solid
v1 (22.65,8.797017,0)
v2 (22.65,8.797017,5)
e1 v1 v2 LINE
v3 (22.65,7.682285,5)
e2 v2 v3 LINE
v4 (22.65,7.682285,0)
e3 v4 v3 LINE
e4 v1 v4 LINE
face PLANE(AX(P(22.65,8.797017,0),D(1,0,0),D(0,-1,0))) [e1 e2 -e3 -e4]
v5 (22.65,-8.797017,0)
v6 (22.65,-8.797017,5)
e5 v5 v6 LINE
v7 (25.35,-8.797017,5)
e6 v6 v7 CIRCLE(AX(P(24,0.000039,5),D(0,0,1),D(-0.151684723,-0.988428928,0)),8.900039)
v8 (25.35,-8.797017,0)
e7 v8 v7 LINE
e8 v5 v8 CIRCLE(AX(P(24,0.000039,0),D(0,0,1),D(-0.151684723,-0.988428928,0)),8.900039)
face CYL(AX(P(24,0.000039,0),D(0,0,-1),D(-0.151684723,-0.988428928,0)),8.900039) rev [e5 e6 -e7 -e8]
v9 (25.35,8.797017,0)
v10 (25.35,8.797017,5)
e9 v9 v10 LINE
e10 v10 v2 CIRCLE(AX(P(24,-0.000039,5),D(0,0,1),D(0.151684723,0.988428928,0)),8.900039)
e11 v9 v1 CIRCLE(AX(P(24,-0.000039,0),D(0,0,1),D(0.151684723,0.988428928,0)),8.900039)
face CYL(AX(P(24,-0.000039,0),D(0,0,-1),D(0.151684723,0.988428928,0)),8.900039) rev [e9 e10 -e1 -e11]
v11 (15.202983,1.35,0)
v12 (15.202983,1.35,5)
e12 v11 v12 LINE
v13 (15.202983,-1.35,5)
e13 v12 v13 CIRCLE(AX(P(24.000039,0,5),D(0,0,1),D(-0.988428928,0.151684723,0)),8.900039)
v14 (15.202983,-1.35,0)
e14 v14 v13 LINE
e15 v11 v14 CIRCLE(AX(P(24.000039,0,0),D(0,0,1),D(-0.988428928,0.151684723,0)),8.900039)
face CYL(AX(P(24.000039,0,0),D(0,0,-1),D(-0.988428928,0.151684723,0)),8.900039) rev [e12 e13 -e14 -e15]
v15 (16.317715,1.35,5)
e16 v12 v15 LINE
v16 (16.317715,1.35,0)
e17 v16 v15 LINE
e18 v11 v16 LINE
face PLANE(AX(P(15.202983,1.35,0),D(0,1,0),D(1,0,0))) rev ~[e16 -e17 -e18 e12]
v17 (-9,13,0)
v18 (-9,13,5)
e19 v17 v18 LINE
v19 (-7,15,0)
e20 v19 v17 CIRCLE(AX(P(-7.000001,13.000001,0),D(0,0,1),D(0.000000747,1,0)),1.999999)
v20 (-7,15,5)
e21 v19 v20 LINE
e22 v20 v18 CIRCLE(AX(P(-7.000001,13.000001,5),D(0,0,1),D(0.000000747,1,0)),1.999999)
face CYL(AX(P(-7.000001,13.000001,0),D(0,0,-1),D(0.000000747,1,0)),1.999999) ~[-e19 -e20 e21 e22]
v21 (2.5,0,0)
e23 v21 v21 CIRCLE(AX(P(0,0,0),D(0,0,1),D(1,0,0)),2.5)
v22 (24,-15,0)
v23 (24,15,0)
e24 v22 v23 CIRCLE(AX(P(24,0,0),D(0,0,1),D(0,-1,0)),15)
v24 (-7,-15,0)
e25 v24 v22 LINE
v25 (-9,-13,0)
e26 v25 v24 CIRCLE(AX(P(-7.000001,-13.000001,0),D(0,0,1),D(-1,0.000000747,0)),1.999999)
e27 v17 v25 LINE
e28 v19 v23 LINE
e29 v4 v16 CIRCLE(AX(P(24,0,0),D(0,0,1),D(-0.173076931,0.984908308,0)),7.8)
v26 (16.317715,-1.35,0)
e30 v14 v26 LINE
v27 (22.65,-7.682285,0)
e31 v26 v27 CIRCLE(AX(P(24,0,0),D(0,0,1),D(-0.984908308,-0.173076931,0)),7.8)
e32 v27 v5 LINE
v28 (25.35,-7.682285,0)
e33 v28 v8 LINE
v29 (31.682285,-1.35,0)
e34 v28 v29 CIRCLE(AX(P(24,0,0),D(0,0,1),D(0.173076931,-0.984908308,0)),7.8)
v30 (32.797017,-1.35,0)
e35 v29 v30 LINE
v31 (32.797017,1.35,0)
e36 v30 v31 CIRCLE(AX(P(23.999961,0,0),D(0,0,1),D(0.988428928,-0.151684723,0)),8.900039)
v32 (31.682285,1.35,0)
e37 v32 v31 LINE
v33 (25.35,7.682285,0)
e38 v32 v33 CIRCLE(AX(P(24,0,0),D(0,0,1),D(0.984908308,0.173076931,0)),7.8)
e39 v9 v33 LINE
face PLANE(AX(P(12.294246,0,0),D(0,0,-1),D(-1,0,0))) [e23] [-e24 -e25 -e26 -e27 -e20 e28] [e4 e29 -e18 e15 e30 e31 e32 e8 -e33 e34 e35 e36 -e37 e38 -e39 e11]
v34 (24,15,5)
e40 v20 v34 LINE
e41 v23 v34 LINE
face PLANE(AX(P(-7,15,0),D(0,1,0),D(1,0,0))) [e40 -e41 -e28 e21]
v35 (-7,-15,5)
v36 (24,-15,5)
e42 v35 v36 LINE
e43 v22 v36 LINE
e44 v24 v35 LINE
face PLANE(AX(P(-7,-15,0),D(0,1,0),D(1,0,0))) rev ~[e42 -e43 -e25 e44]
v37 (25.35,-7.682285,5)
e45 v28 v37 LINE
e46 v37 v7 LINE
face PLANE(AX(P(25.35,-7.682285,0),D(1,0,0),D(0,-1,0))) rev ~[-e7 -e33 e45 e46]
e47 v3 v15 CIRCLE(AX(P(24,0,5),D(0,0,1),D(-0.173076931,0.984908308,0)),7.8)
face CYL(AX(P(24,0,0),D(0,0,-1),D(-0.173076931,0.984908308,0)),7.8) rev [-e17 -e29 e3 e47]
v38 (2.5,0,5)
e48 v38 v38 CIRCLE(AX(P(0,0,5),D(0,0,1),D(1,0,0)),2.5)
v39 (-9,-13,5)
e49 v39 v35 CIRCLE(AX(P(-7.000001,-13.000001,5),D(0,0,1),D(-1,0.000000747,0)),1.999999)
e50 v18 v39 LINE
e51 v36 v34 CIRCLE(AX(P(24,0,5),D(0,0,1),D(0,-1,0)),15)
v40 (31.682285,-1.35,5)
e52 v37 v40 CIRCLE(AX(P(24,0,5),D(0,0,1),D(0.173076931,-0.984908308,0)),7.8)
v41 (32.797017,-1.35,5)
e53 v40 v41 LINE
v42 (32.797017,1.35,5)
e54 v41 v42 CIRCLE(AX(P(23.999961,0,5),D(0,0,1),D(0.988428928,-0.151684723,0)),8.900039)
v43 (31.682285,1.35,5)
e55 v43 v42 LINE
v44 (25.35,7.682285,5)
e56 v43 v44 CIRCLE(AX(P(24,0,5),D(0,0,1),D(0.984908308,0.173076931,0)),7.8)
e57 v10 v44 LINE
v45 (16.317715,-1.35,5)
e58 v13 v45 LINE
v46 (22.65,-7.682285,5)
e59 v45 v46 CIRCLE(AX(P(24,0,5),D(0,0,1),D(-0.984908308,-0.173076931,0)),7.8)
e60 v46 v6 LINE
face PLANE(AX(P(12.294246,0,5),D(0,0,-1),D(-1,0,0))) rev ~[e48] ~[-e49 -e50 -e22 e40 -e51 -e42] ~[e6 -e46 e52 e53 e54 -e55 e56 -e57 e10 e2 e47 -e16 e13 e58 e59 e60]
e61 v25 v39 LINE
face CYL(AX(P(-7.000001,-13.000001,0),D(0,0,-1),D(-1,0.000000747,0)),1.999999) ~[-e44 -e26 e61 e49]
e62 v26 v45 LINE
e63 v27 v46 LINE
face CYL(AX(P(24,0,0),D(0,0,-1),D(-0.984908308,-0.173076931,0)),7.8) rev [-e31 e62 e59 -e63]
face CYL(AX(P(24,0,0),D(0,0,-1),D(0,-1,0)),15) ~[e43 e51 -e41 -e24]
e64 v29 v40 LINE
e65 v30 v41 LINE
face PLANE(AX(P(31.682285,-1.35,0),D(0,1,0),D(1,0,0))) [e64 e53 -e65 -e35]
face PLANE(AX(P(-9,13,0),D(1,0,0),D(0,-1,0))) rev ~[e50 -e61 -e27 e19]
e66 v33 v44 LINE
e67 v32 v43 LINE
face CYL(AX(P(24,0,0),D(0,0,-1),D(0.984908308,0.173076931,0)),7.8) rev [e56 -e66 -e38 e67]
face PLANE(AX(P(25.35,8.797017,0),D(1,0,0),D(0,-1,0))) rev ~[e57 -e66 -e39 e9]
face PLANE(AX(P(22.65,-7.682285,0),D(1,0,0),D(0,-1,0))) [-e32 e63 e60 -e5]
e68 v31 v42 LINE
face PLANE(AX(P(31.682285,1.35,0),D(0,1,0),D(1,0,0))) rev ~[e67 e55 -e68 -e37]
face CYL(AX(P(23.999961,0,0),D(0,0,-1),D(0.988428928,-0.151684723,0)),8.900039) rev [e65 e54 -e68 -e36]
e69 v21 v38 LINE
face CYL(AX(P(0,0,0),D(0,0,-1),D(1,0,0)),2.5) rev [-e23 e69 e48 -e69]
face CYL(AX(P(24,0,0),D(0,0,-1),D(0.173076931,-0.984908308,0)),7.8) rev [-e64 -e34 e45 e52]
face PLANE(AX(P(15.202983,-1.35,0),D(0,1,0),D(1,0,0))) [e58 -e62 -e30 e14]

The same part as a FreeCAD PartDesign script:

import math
import FreeCAD as App
import Part
import Sketcher

V = App.Vector
Q = App.Units.Quantity

doc = App.newDocument("Part")
params = doc.addObject("Spreadsheet::Sheet", "Params")
for row, (alias, value) in enumerate([
    ("sketch1_diameter", "5 mm"),
    ("sketch1_radius", "1.999999 mm"),
    ("sketch1_radius2", "15 mm"),
    ("sketch1_radius3", "7.8 mm"),
    ("sketch1_width", "31 mm"),
    ("pad1_length", "5 mm"),
], start=1):
    params.set(f"A{row}", alias)
    params.set(f"B{row}", "=" + value)
    params.setAlias(f"B{row}", alias)

body = doc.addObject("PartDesign::Body", "Body")

# Sketch on XY plane
sketch1 = body.newObject("Sketcher::SketchObject", "Sketch")
sketch1.AttachmentSupport = (doc.getObject("XY_Plane"), [""])
sketch1.MapMode = "FlatFace"
sketch1.addGeometry(Part.LineSegment(V(24, 15, 0), V(-7, 15, 0)), False)
sketch1.addGeometry(Part.ArcOfCircle(Part.Circle(V(-7.000001, 13.000001, 0), V(0, 0, 1), 1.999999), math.radians(89.999957), math.radians(180.000043)), False)
sketch1.addGeometry(Part.LineSegment(V(-9, 13, 0), V(-9, -13, 0)), False)
sketch1.addGeometry(Part.ArcOfCircle(Part.Circle(V(-7.000001, -13.000001, 0), V(0, 0, 1), 1.999999), math.radians(179.999957), math.radians(270.000043)), False)
sketch1.addGeometry(Part.LineSegment(V(-7, -15, 0), V(24, -15, 0)), False)
sketch1.addGeometry(Part.ArcOfCircle(Part.Circle(V(24, 0, 0), V(0, 0, 1), 15), math.radians(-90), math.radians(90)), False)
sketch1.addGeometry(Part.LineSegment(V(16.317715, -1.35, 0), V(15.202983, -1.35, 0)), False)
sketch1.addGeometry(Part.ArcOfCircle(Part.Circle(V(24.000039, 0, 0), V(0, 0, 1), 8.900039), math.radians(171.275429), math.radians(188.724571)), False)
sketch1.addGeometry(Part.LineSegment(V(15.202983, 1.35, 0), V(16.317715, 1.35, 0)), False)
sketch1.addGeometry(Part.ArcOfCircle(Part.Circle(V(24, 0, 0), V(0, 0, 1), 7.8), math.radians(99.966767), math.radians(170.033233)), False)
sketch1.addGeometry(Part.LineSegment(V(22.65, 7.682285, 0), V(22.65, 8.797017, 0)), False)
sketch1.addGeometry(Part.ArcOfCircle(Part.Circle(V(24, -0.000039, 0), V(0, 0, 1), 8.900039), math.radians(81.275429), math.radians(98.724571)), False)
sketch1.addGeometry(Part.LineSegment(V(25.35, 8.797017, 0), V(25.35, 7.682285, 0)), False)
sketch1.addGeometry(Part.ArcOfCircle(Part.Circle(V(24, 0, 0), V(0, 0, 1), 7.8), math.radians(9.966767), math.radians(80.033233)), False)
sketch1.addGeometry(Part.LineSegment(V(31.682285, 1.35, 0), V(32.797017, 1.35, 0)), False)
sketch1.addGeometry(Part.ArcOfCircle(Part.Circle(V(23.999961, 0, 0), V(0, 0, 1), 8.900039), math.radians(-8.724571), math.radians(8.724571)), False)
sketch1.addGeometry(Part.LineSegment(V(32.797017, -1.35, 0), V(31.682285, -1.35, 0)), False)
sketch1.addGeometry(Part.ArcOfCircle(Part.Circle(V(24, 0, 0), V(0, 0, 1), 7.8), math.radians(-80.033233), math.radians(-9.966767)), False)
sketch1.addGeometry(Part.LineSegment(V(25.35, -7.682285, 0), V(25.35, -8.797017, 0)), False)
sketch1.addGeometry(Part.ArcOfCircle(Part.Circle(V(24, 0.000039, 0), V(0, 0, 1), 8.900039), math.radians(-98.724571), math.radians(-81.275429)), False)
sketch1.addGeometry(Part.LineSegment(V(22.65, -8.797017, 0), V(22.65, -7.682285, 0)), False)
sketch1.addGeometry(Part.ArcOfCircle(Part.Circle(V(24, 0, 0), V(0, 0, 1), 7.8), math.radians(-170.033233), math.radians(-99.966767)), False)
sketch1.addGeometry(Part.Circle(V(0, 0, 0), V(0, 0, 1), 2.5), False)
sketch1.addConstraint(Sketcher.Constraint("Tangent", 0, 2, 1, 1))
sketch1.addConstraint(Sketcher.Constraint("Tangent", 1, 2, 2, 1))
sketch1.addConstraint(Sketcher.Constraint("Tangent", 2, 2, 3, 1))
sketch1.addConstraint(Sketcher.Constraint("Tangent", 3, 2, 4, 1))
sketch1.addConstraint(Sketcher.Constraint("Tangent", 4, 2, 5, 1))
sketch1.addConstraint(Sketcher.Constraint("Tangent", 5, 2, 0, 1))
sketch1.addConstraint(Sketcher.Constraint("Coincident", 6, 2, 7, 2))
sketch1.addConstraint(Sketcher.Constraint("Coincident", 7, 1, 8, 1))
sketch1.addConstraint(Sketcher.Constraint("Coincident", 8, 2, 9, 2))
sketch1.addConstraint(Sketcher.Constraint("Coincident", 9, 1, 10, 1))
sketch1.addConstraint(Sketcher.Constraint("Coincident", 10, 2, 11, 2))
sketch1.addConstraint(Sketcher.Constraint("Coincident", 11, 1, 12, 1))
sketch1.addConstraint(Sketcher.Constraint("Coincident", 12, 2, 13, 2))
sketch1.addConstraint(Sketcher.Constraint("Coincident", 13, 1, 14, 1))
sketch1.addConstraint(Sketcher.Constraint("Coincident", 14, 2, 15, 2))
sketch1.addConstraint(Sketcher.Constraint("Coincident", 15, 1, 16, 1))
sketch1.addConstraint(Sketcher.Constraint("Coincident", 16, 2, 17, 2))
sketch1.addConstraint(Sketcher.Constraint("Coincident", 17, 1, 18, 1))
sketch1.addConstraint(Sketcher.Constraint("Coincident", 18, 2, 19, 2))
sketch1.addConstraint(Sketcher.Constraint("Coincident", 19, 1, 20, 1))
sketch1.addConstraint(Sketcher.Constraint("Coincident", 20, 2, 21, 2))
sketch1.addConstraint(Sketcher.Constraint("Coincident", 21, 1, 6, 1))
sketch1.addConstraint(Sketcher.Constraint("Horizontal", 0))
sketch1.addConstraint(Sketcher.Constraint("Vertical", 2))
sketch1.addConstraint(Sketcher.Constraint("Horizontal", 4))
sketch1.addConstraint(Sketcher.Constraint("Horizontal", 6))
sketch1.addConstraint(Sketcher.Constraint("Horizontal", 8))
sketch1.addConstraint(Sketcher.Constraint("Vertical", 10))
sketch1.addConstraint(Sketcher.Constraint("Vertical", 12))
sketch1.addConstraint(Sketcher.Constraint("Horizontal", 14))
sketch1.addConstraint(Sketcher.Constraint("Horizontal", 16))
sketch1.addConstraint(Sketcher.Constraint("Vertical", 18))
sketch1.addConstraint(Sketcher.Constraint("Vertical", 20))
sketch1.addConstraint(Sketcher.Constraint("Coincident", 22, 3, -1, 1))
sketch1.addConstraint(Sketcher.Constraint("Coincident", 9, 3, 5, 3))
sketch1.addConstraint(Sketcher.Constraint("Coincident", 13, 3, 5, 3))
sketch1.addConstraint(Sketcher.Constraint("Coincident", 17, 3, 5, 3))
sketch1.addConstraint(Sketcher.Constraint("Coincident", 21, 3, 5, 3))
sketch1.addConstraint(Sketcher.Constraint("Equal", 1, 3))
sketch1.addConstraint(Sketcher.Constraint("Equal", 7, 11))
sketch1.addConstraint(Sketcher.Constraint("Equal", 9, 13))
sketch1.addConstraint(Sketcher.Constraint("Equal", 11, 15))
sketch1.addConstraint(Sketcher.Constraint("Equal", 13, 17))
sketch1.addConstraint(Sketcher.Constraint("Equal", 15, 19))
sketch1.addConstraint(Sketcher.Constraint("Equal", 17, 21))
sketch1.addConstraint(Sketcher.Constraint("Symmetric", 11, 3, 19, 3, -1))
sketch1.addConstraint(Sketcher.Constraint("Symmetric", 6, 2, 7, 1, -1))
sketch1.addConstraint(Sketcher.Constraint("Symmetric", 14, 2, 15, 1, -1))
sketch1.addConstraint(Sketcher.Constraint("Symmetric", 12, 2, 17, 1, -1))
sketch1.addConstraint(Sketcher.Constraint("Horizontal", 10, 2, 11, 1))
sketch1.addConstraint(Sketcher.Constraint("Horizontal", 9, 1, 12, 2))
sketch1.addConstraint(Sketcher.Constraint("Horizontal", 8, 2, 13, 1))
sketch1.addConstraint(Sketcher.Constraint("Horizontal", 18, 2, 19, 1))
sketch1.addConstraint(Sketcher.Constraint("Equal", 8, 14))
sketch1.addConstraint(Sketcher.Constraint("Equal", 16, 10))
sketch1.addConstraint(Sketcher.Constraint("Diameter", 22, Q("5 mm")))
sketch1.addConstraint(Sketcher.Constraint("Radius", 1, Q("1.999999 mm")))
sketch1.addConstraint(Sketcher.Constraint("Radius", 5, Q("15 mm")))
sketch1.addConstraint(Sketcher.Constraint("Radius", 9, Q("7.8 mm")))
sketch1.addConstraint(Sketcher.Constraint("DistanceX", 0, 2, 0, 1, Q("31 mm")))
sketch1.addConstraint(Sketcher.Constraint("DistanceX", 1, 3, -1, 1, Q("7.000001 mm")))
sketch1.addConstraint(Sketcher.Constraint("DistanceY", 6, 2, 7, 1, Q("2.7 mm")))
sketch1.addConstraint(Sketcher.Constraint("DistanceX", 10, 2, 11, 1, Q("2.7 mm")))
sketch1.addConstraint(Sketcher.Constraint("Radius", 7, Q("8.900039 mm")))
sketch1.addConstraint(Sketcher.Constraint("DistanceX", 14, 1, 14, 2, Q("1.114732 mm")))
sketch1.setExpression("Constraints[55]", "Params.sketch1_diameter")
sketch1.setExpression("Constraints[56]", "Params.sketch1_radius")
sketch1.setExpression("Constraints[57]", "Params.sketch1_radius2")
sketch1.setExpression("Constraints[58]", "Params.sketch1_radius3")
sketch1.setExpression("Constraints[59]", "Params.sketch1_width")
pad1 = body.newObject("PartDesign::Pad", "Pad")
pad1.Profile = sketch1
pad1.setExpression("Length", "Params.pad1_length")

doc.recompute()
